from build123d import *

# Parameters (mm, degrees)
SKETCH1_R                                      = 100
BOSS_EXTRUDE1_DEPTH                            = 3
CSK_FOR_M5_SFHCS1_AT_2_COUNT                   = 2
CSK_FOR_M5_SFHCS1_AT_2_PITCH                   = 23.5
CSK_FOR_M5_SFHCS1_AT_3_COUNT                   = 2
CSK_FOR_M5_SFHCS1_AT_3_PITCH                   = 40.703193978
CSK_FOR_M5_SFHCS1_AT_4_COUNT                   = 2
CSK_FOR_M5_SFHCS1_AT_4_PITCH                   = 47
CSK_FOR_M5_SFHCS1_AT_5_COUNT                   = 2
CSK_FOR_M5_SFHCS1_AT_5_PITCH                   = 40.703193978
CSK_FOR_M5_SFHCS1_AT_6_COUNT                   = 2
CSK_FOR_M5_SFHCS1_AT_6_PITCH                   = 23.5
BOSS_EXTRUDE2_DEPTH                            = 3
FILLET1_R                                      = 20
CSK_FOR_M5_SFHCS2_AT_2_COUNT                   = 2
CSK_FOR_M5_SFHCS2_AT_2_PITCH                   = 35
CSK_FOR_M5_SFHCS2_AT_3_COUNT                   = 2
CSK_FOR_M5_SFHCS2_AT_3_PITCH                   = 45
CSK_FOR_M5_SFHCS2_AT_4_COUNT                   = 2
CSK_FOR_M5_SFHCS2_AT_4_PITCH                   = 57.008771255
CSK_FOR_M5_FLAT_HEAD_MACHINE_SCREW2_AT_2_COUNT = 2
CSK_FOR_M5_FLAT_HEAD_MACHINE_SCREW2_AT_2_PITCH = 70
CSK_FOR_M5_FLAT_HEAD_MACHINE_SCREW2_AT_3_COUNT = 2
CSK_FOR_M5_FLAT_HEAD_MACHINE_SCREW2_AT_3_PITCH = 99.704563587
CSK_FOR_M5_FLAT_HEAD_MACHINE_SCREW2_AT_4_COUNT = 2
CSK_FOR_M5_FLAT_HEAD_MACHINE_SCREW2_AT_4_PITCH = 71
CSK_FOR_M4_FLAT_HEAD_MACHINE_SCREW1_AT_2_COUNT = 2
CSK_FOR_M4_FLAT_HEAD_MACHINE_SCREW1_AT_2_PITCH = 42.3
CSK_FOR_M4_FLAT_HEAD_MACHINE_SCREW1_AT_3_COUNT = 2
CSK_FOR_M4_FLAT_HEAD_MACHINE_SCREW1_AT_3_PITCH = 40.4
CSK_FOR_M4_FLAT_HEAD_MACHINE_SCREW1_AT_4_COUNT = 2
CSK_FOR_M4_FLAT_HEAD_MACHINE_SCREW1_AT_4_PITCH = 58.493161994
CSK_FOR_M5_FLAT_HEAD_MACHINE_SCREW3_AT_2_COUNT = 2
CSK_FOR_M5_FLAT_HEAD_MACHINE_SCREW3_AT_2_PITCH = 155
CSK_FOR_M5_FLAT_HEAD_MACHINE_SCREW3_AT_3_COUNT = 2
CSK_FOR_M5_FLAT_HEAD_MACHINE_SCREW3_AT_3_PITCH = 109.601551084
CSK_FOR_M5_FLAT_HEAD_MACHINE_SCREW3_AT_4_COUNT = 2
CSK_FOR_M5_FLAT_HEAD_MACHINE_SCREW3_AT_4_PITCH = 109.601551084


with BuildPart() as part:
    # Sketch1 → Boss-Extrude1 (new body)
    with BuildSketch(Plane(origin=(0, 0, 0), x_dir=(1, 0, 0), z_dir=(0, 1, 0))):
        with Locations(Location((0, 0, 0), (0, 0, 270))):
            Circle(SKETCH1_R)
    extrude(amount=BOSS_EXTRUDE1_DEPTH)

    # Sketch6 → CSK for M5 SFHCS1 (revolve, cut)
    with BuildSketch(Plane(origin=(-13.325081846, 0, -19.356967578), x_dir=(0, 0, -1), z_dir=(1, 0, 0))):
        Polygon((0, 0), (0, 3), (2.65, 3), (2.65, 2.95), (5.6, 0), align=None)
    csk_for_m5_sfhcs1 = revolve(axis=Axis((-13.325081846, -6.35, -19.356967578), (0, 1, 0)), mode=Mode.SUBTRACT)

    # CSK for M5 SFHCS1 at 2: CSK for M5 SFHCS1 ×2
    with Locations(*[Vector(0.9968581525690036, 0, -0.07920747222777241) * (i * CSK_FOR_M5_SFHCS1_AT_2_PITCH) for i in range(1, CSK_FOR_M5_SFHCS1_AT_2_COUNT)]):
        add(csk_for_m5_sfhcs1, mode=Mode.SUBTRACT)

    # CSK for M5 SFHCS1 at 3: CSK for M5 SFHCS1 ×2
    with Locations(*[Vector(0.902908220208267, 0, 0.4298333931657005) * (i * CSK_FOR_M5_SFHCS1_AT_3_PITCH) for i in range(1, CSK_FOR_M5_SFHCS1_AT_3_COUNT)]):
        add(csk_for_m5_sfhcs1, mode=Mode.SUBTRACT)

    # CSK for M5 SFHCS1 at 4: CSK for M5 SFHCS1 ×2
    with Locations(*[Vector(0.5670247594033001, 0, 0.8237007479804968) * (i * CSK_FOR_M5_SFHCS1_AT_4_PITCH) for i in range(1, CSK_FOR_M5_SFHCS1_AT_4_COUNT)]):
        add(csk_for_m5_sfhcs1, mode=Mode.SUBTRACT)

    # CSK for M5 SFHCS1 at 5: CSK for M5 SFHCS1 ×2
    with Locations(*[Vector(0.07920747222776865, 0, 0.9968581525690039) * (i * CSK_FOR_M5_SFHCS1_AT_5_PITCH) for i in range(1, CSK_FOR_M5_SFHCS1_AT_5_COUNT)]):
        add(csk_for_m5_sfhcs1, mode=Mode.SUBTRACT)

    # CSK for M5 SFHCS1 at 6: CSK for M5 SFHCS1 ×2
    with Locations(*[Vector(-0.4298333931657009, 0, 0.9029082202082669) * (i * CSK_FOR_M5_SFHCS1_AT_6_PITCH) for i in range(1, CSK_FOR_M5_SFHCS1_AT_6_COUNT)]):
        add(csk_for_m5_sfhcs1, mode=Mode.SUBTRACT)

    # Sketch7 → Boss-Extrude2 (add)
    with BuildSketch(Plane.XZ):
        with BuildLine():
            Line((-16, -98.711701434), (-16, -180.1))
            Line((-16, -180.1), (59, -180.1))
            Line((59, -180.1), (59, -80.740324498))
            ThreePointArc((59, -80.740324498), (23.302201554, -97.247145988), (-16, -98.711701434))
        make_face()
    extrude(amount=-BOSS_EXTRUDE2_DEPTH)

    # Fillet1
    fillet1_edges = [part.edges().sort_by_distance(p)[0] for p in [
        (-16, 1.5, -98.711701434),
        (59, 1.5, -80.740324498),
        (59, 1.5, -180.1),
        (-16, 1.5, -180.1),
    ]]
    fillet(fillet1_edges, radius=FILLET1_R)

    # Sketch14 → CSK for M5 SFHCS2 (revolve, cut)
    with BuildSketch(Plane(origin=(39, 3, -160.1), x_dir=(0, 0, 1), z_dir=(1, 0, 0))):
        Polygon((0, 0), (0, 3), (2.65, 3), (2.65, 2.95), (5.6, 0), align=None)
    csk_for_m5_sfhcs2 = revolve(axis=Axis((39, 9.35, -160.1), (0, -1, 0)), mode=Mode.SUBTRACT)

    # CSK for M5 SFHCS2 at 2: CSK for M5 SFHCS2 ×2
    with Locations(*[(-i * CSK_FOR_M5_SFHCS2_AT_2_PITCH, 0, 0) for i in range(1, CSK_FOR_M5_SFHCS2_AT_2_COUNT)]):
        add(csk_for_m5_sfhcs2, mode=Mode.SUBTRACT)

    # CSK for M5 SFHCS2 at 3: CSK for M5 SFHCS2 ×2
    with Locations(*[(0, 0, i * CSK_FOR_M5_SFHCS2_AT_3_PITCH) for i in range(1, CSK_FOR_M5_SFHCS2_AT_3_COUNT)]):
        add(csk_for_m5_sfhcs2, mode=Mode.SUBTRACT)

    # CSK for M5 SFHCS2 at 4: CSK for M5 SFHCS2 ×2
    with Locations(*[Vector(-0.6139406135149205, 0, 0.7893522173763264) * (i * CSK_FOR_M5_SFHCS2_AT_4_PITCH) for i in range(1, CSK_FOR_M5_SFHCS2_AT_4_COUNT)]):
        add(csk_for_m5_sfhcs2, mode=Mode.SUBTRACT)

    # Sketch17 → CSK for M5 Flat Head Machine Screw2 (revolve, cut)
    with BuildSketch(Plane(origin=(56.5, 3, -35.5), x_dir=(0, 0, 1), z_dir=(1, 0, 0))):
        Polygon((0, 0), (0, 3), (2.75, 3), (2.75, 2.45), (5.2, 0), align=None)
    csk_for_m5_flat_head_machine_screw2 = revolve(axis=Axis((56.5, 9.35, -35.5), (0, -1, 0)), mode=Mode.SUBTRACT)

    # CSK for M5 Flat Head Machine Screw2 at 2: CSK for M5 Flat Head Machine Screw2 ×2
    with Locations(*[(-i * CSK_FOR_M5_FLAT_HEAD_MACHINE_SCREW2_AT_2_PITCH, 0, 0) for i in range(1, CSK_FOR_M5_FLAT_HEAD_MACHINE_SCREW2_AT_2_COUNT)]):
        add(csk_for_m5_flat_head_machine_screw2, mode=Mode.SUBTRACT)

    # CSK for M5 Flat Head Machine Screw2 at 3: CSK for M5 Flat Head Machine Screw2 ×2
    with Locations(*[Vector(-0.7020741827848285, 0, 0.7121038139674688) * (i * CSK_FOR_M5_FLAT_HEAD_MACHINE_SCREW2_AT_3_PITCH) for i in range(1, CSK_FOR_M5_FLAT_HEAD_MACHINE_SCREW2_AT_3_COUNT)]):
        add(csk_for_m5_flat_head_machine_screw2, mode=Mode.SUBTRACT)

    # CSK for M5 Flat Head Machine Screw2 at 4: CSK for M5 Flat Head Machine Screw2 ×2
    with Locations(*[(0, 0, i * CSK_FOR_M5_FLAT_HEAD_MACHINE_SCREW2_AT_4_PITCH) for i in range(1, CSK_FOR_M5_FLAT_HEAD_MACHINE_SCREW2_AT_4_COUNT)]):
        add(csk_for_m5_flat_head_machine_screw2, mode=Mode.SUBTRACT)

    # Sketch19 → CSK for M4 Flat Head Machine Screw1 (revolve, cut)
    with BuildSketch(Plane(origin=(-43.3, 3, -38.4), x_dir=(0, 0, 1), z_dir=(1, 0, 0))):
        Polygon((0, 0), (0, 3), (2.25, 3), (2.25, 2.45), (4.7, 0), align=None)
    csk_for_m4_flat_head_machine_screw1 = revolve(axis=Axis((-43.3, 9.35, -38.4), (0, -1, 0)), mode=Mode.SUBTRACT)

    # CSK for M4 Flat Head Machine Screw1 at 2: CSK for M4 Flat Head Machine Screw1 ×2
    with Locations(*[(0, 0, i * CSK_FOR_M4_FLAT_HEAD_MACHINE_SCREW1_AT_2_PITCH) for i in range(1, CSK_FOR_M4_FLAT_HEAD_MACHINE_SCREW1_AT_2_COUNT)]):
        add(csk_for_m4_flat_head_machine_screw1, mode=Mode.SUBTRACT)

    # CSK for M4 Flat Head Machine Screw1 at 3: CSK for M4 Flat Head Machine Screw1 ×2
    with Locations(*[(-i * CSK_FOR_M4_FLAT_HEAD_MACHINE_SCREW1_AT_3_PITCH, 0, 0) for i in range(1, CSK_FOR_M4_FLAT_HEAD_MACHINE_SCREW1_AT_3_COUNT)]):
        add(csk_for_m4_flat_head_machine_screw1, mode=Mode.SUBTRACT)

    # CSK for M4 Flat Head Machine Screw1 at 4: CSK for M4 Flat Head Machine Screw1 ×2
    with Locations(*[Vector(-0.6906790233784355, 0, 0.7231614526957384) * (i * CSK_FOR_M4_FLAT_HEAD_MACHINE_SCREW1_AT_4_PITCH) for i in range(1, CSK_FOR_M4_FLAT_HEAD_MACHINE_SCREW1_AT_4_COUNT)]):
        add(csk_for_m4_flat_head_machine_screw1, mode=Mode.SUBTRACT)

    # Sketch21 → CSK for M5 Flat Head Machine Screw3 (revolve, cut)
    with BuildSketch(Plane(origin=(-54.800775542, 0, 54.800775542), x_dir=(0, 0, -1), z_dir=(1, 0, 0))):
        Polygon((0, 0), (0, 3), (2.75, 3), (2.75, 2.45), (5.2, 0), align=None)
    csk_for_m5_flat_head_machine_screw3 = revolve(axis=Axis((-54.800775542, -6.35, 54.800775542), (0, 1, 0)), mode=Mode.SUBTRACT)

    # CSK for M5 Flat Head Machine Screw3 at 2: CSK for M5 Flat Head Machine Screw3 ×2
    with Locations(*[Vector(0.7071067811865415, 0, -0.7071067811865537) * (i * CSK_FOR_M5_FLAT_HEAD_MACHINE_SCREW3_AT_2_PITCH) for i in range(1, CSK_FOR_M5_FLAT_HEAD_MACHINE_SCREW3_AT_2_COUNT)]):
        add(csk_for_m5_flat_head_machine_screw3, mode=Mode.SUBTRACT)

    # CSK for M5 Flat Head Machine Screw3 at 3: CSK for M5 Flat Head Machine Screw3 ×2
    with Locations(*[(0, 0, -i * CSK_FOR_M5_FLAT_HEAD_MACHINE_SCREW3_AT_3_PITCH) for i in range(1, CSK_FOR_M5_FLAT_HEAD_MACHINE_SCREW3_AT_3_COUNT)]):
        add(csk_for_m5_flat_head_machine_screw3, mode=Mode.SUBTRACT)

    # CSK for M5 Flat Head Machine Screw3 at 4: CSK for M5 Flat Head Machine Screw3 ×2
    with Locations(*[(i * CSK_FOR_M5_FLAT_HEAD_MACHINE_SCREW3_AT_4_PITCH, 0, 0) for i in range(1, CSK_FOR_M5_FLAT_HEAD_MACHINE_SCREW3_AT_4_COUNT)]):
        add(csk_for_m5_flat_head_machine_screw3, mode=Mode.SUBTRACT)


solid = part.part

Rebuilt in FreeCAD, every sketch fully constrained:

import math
import FreeCAD as App
import Part
import Sketcher
from FreeCAD import Vector
Q = App.Units.Quantity


def edges_at(feature, points):
    """Names of the edges that pass closest to the given points."""
    edges = feature.Shape.Edges
    near = lambda p: min(range(len(edges)), key=lambda i: edges[i].distToShape(Part.Vertex(*p))[0])
    return sorted({f"Edge{near(p) + 1}" for p in points})

doc = App.newDocument("Part")
body = doc.addObject("PartDesign::Body", "Body")

# Sketch on XZ plane
sketch1 = body.newObject("Sketcher::SketchObject", "Sketch")
sketch1.AttachmentSupport = (doc.getObject("XZ_Plane"), [""])
sketch1.MapMode = "FlatFace"
sketch1.addGeometry(Part.Circle(Vector(0, 0, 0), Vector(0, 0, 1), 100), False)
sketch1.addConstraint([
    Sketcher.Constraint("Coincident", 0, 3, -1, 1),
    Sketcher.Constraint("Diameter", 0, 200.0),
])
pad1 = body.newObject("PartDesign::Pad", "Pad")
pad1.Profile = sketch1
pad1.Length = 3
pad1.Reversed = True

# Sketch on YZ plane
sketch2 = body.newObject("Sketcher::SketchObject", "Sketch001")
sketch2.AttachmentSupport = (doc.getObject("YZ_Plane"), [""])
sketch2.MapMode = "FlatFace"
sketch2.AttachmentOffset = App.Placement(Vector(0, 0, -13.325082), App.Rotation())
sketch2.addGeometry([
    Part.LineSegment(Vector(3, -19.356968, 0), Vector(0, -19.356968, 0)),  # 0
    Part.LineSegment(Vector(0, -19.356968, 0), Vector(0, -24.956968, 0)),  # 1
    Part.LineSegment(Vector(0, -24.956968, 0), Vector(2.95, -22.006968, 0)),  # 2
    Part.LineSegment(Vector(2.95, -22.006968, 0), Vector(3, -22.006968, 0)),  # 3
    Part.LineSegment(Vector(3, -22.006968, 0), Vector(3, -19.356968, 0)),  # 4
], False)
sketch2.addGeometry(Part.LineSegment(Vector(0, -19.356968, 0), Vector(3, -19.356968, 0)), True)  # axis
sketch2.addConstraint([
    Sketcher.Constraint("Coincident", 0, 2, 1, 1),
    Sketcher.Constraint("Coincident", 1, 2, 2, 1),
    Sketcher.Constraint("Coincident", 2, 2, 3, 1),
    Sketcher.Constraint("Coincident", 3, 2, 4, 1),
    Sketcher.Constraint("Coincident", 4, 2, 0, 1),
    Sketcher.Constraint("Horizontal", 0),
    Sketcher.Constraint("Vertical", 1),
    Sketcher.Constraint("Horizontal", 3),
    Sketcher.Constraint("Vertical", 4),
    Sketcher.Constraint("Horizontal", 5),
    Sketcher.Constraint("Coincident", 5, 1, 0, 2),
    Sketcher.Constraint("PointOnObject", 0, 2, -2),
    Sketcher.Constraint("Vertical", 3, 2, 5, 2),
    Sketcher.Constraint("DistanceX", 0, 2, 0, 1, 3.0),
    Sketcher.Constraint("Angle", 2, Q("45 deg")),
    Sketcher.Constraint("DistanceY", 1, 2, 1, 1, 5.6),
    Sketcher.Constraint("DistanceX", 3, 1, 3, 2, 0.05),
    Sketcher.Constraint("DistanceY", 0, 2, -1, 1, 19.356968),
])
groove = body.newObject("PartDesign::Groove", "Groove")
groove.Profile = sketch2
groove.ReferenceAxis = (sketch2, ["Axis0"])
groove.Angle = 360
doc.recompute()

datumline = body.newObject("PartDesign::Line", "DatumLine")
datumline.Placement = App.Placement(Vector(0, 0, 0), App.Rotation(Vector(0, 0, 1), Vector(0.996858153, 0, -0.079207472)))
linearpattern = body.newObject("PartDesign::LinearPattern", "LinearPattern")
linearpattern.Originals = [groove]
linearpattern.Direction = (datumline, [""])
linearpattern.Mode = "offset"
linearpattern.Offset = 23.5
linearpattern.Occurrences = 2
body.Tip = linearpattern
doc.recompute()

datumline2 = body.newObject("PartDesign::Line", "DatumLine001")
datumline2.Placement = App.Placement(Vector(0, 0, 0), App.Rotation(Vector(0, 0, 1), Vector(0.90290822, 0, 0.429833393)))
linearpattern2 = body.newObject("PartDesign::LinearPattern", "LinearPattern001")
linearpattern2.Originals = [groove]
linearpattern2.Direction = (datumline2, [""])
linearpattern2.Mode = "offset"
linearpattern2.Offset = 40.703194
linearpattern2.Occurrences = 2
body.Tip = linearpattern2
doc.recompute()

datumline3 = body.newObject("PartDesign::Line", "DatumLine002")
datumline3.Placement = App.Placement(Vector(0, 0, 0), App.Rotation(Vector(0, 0, 1), Vector(0.567024759, 0, 0.823700748)))
linearpattern3 = body.newObject("PartDesign::LinearPattern", "LinearPattern002")
linearpattern3.Originals = [groove]
linearpattern3.Direction = (datumline3, [""])
linearpattern3.Mode = "offset"
linearpattern3.Offset = 47
linearpattern3.Occurrences = 2
body.Tip = linearpattern3
doc.recompute()

datumline4 = body.newObject("PartDesign::Line", "DatumLine003")
datumline4.Placement = App.Placement(Vector(0, 0, 0), App.Rotation(Vector(0, 0, 1), Vector(0.079207472, 0, 0.996858153)))
linearpattern4 = body.newObject("PartDesign::LinearPattern", "LinearPattern003")
linearpattern4.Originals = [groove]
linearpattern4.Direction = (datumline4, [""])
linearpattern4.Mode = "offset"
linearpattern4.Offset = 40.703194
linearpattern4.Occurrences = 2
body.Tip = linearpattern4
doc.recompute()

datumline5 = body.newObject("PartDesign::Line", "DatumLine004")
datumline5.Placement = App.Placement(Vector(0, 0, 0), App.Rotation(Vector(0, 0, 1), Vector(-0.429833393, 0, 0.90290822)))
linearpattern5 = body.newObject("PartDesign::LinearPattern", "LinearPattern004")
linearpattern5.Originals = [groove]
linearpattern5.Direction = (datumline5, [""])
linearpattern5.Mode = "offset"
linearpattern5.Offset = 23.5
linearpattern5.Occurrences = 2
body.Tip = linearpattern5

# Sketch on XZ plane
sketch3 = body.newObject("Sketcher::SketchObject", "Sketch002")
sketch3.AttachmentSupport = (doc.getObject("XZ_Plane"), [""])
sketch3.MapMode = "FlatFace"
sketch3.addGeometry([
    Part.LineSegment(Vector(-16, -99, 0), Vector(-16, -180, 0)),
    Part.LineSegment(Vector(-16, -180, 0), Vector(59, -180, 0)),
    Part.LineSegment(Vector(59, -180, 0), Vector(59, -81, 0)),
    Part.ArcOfCircle(Part.Circle(Vector(0, 0, 0), Vector(0, 0, 1), 100), math.radians(-99), math.radians(-54)),
], False)
sketch3.addConstraint([
    Sketcher.Constraint("Coincident", 0, 2, 1, 1),
    Sketcher.Constraint("Coincident", 1, 2, 2, 1),
    Sketcher.Constraint("Coincident", 2, 2, 3, 2),
    Sketcher.Constraint("Coincident", 3, 1, 0, 1),
    Sketcher.Constraint("Vertical", 0),
    Sketcher.Constraint("Horizontal", 1),
    Sketcher.Constraint("Vertical", 2),
    Sketcher.Constraint("Coincident", 3, 3, -1, 1),
    Sketcher.Constraint("Radius", 3, 100.0),
    Sketcher.Constraint("DistanceX", 1, 1, 1, 2, 75.0),
    Sketcher.Constraint("DistanceX", 0, 2, -1, 1, 16.0),
    Sketcher.Constraint("DistanceY", 0, 2, -1, 1, 180.1),
])
pad2 = body.newObject("PartDesign::Pad", "Pad001")
pad2.Profile = sketch3
pad2.Length = 3
pad2.Reversed = True
doc.recompute()

fillet = body.newObject("PartDesign::Fillet", "Fillet")
fillet.Base = (pad2, edges_at(pad2, [
    (-16, 1.5, -98.712),
    (59, 1.5, -80.74),
    (59, 1.5, -180.1),
    (-16, 1.5, -180.1),
]))
fillet.Radius = 20

# Sketch on YZ plane
sketch4 = body.newObject("Sketcher::SketchObject", "Sketch003")
sketch4.AttachmentSupport = (doc.getObject("YZ_Plane"), [""])
sketch4.MapMode = "FlatFace"
sketch4.AttachmentOffset = App.Placement(Vector(0, 0, 39), App.Rotation())
sketch4.addGeometry([
    Part.LineSegment(Vector(0, -160.1, 0), Vector(3, -160.1, 0)),  # 0
    Part.LineSegment(Vector(3, -160.1, 0), Vector(3, -154.5, 0)),  # 1
    Part.LineSegment(Vector(3, -154.5, 0), Vector(0.05, -157.45, 0)),  # 2
    Part.LineSegment(Vector(0.05, -157.45, 0), Vector(0, -157.45, 0)),  # 3
    Part.LineSegment(Vector(0, -157.45, 0), Vector(0, -160.1, 0)),  # 4
], False)
sketch4.addGeometry(Part.LineSegment(Vector(3, -160.1, 0), Vector(0, -160.1, 0)), True)  # axis
sketch4.addConstraint([
    Sketcher.Constraint("Coincident", 0, 2, 1, 1),
    Sketcher.Constraint("Coincident", 1, 2, 2, 1),
    Sketcher.Constraint("Coincident", 2, 2, 3, 1),
    Sketcher.Constraint("Coincident", 3, 2, 4, 1),
    Sketcher.Constraint("Coincident", 4, 2, 0, 1),
    Sketcher.Constraint("Horizontal", 0),
    Sketcher.Constraint("Vertical", 1),
    Sketcher.Constraint("Horizontal", 3),
    Sketcher.Constraint("Vertical", 4),
    Sketcher.Constraint("Horizontal", 5),
    Sketcher.Constraint("Coincident", 5, 1, 0, 2),
    Sketcher.Constraint("PointOnObject", 3, 2, -2),
    Sketcher.Constraint("PointOnObject", 5, 2, -2),
    Sketcher.Constraint("DistanceX", 0, 1, 0, 2, 3.0),
    Sketcher.Constraint("Angle", 2, Q("-135 deg")),
    Sketcher.Constraint("DistanceY", 1, 1, 1, 2, 5.6),
    Sketcher.Constraint("DistanceX", 3, 2, 3, 1, 0.05),
    Sketcher.Constraint("DistanceY", 0, 2, -1, 1, 160.1),
])
groove2 = body.newObject("PartDesign::Groove", "Groove001")
groove2.Profile = sketch4
groove2.ReferenceAxis = (sketch4, ["Axis0"])
groove2.Angle = 360
doc.recompute()

linearpattern6 = body.newObject("PartDesign::LinearPattern", "LinearPattern005")
linearpattern6.Originals = [groove2]
linearpattern6.Direction = (doc.getObject("X_Axis"), [""])
linearpattern6.Mode = "offset"
linearpattern6.Offset = 35
linearpattern6.Occurrences = 2
linearpattern6.Reversed = True
body.Tip = linearpattern6
doc.recompute()

linearpattern7 = body.newObject("PartDesign::LinearPattern", "LinearPattern006")
linearpattern7.Originals = [groove2]
linearpattern7.Direction = (doc.getObject("Z_Axis"), [""])
linearpattern7.Mode = "offset"
linearpattern7.Offset = 45
linearpattern7.Occurrences = 2
body.Tip = linearpattern7
doc.recompute()

datumline6 = body.newObject("PartDesign::Line", "DatumLine005")
datumline6.Placement = App.Placement(Vector(0, 0, 0), App.Rotation(Vector(0, 0, 1), Vector(-0.613940614, 0, 0.789352217)))
linearpattern8 = body.newObject("PartDesign::LinearPattern", "LinearPattern007")
linearpattern8.Originals = [groove2]
linearpattern8.Direction = (datumline6, [""])
linearpattern8.Mode = "offset"
linearpattern8.Offset = 57.008771
linearpattern8.Occurrences = 2
body.Tip = linearpattern8

# Sketch on YZ plane
sketch5 = body.newObject("Sketcher::SketchObject", "Sketch004")
sketch5.AttachmentSupport = (doc.getObject("YZ_Plane"), [""])
sketch5.MapMode = "FlatFace"
sketch5.AttachmentOffset = App.Placement(Vector(0, 0, 56.5), App.Rotation())
sketch5.addGeometry([
    Part.LineSegment(Vector(0, -35.5, 0), Vector(3, -35.5, 0)),  # 0
    Part.LineSegment(Vector(3, -35.5, 0), Vector(3, -30.3, 0)),  # 1
    Part.LineSegment(Vector(3, -30.3, 0), Vector(0.6, -32.8, 0)),  # 2
    Part.LineSegment(Vector(0.6, -32.8, 0), Vector(0, -32.8, 0)),  # 3
    Part.LineSegment(Vector(0, -32.8, 0), Vector(0, -35.5, 0)),  # 4
], False)
sketch5.addGeometry(Part.LineSegment(Vector(3, -35.5, 0), Vector(0, -35.5, 0)), True)  # axis
sketch5.addConstraint([
    Sketcher.Constraint("Coincident", 0, 2, 1, 1),
    Sketcher.Constraint("Coincident", 1, 2, 2, 1),
    Sketcher.Constraint("Coincident", 2, 2, 3, 1),
    Sketcher.Constraint("Coincident", 3, 2, 4, 1),
    Sketcher.Constraint("Coincident", 4, 2, 0, 1),
    Sketcher.Constraint("Horizontal", 0),
    Sketcher.Constraint("Vertical", 1),
    Sketcher.Constraint("Horizontal", 3),
    Sketcher.Constraint("Vertical", 4),
    Sketcher.Constraint("Horizontal", 5),
    Sketcher.Constraint("Coincident", 5, 1, 0, 2),
    Sketcher.Constraint("PointOnObject", 3, 2, -2),
    Sketcher.Constraint("PointOnObject", 5, 2, -2),
    Sketcher.Constraint("DistanceX", 0, 1, 0, 2, 3.0),
    Sketcher.Constraint("Angle", 2, Q("-135 deg")),
    Sketcher.Constraint("DistanceY", 1, 1, 1, 2, 5.2),
    Sketcher.Constraint("DistanceX", 3, 2, 3, 1, 0.55),
    Sketcher.Constraint("DistanceY", 0, 2, -1, 1, 35.5),
])
groove3 = body.newObject("PartDesign::Groove", "Groove002")
groove3.Profile = sketch5
groove3.ReferenceAxis = (sketch5, ["Axis0"])
groove3.Angle = 360
doc.recompute()

linearpattern9 = body.newObject("PartDesign::LinearPattern", "LinearPattern008")
linearpattern9.Originals = [groove3]
linearpattern9.Direction = (doc.getObject("X_Axis"), [""])
linearpattern9.Mode = "offset"
linearpattern9.Offset = 70
linearpattern9.Occurrences = 2
linearpattern9.Reversed = True
body.Tip = linearpattern9
doc.recompute()

datumline7 = body.newObject("PartDesign::Line", "DatumLine006")
datumline7.Placement = App.Placement(Vector(0, 0, 0), App.Rotation(Vector(0, 0, 1), Vector(-0.702074183, 0, 0.712103814)))
linearpattern10 = body.newObject("PartDesign::LinearPattern", "LinearPattern009")
linearpattern10.Originals = [groove3]
linearpattern10.Direction = (datumline7, [""])
linearpattern10.Mode = "offset"
linearpattern10.Offset = 99.704564
linearpattern10.Occurrences = 2
body.Tip = linearpattern10
doc.recompute()

linearpattern11 = body.newObject("PartDesign::LinearPattern", "LinearPattern010")
linearpattern11.Originals = [groove3]
linearpattern11.Direction = (doc.getObject("Z_Axis"), [""])
linearpattern11.Mode = "offset"
linearpattern11.Offset = 71
linearpattern11.Occurrences = 2
body.Tip = linearpattern11

# Sketch on YZ plane
sketch6 = body.newObject("Sketcher::SketchObject", "Sketch005")
sketch6.AttachmentSupport = (doc.getObject("YZ_Plane"), [""])
sketch6.MapMode = "FlatFace"
sketch6.AttachmentOffset = App.Placement(Vector(0, 0, -43.3), App.Rotation())
sketch6.addGeometry([
    Part.LineSegment(Vector(0, -38.4, 0), Vector(3, -38.4, 0)),  # 0
    Part.LineSegment(Vector(3, -38.4, 0), Vector(3, -33.7, 0)),  # 1
    Part.LineSegment(Vector(3, -33.7, 0), Vector(0.6, -36.1, 0)),  # 2
    Part.LineSegment(Vector(0.6, -36.1, 0), Vector(0, -36.1, 0)),  # 3
    Part.LineSegment(Vector(0, -36.1, 0), Vector(0, -38.4, 0)),  # 4
], False)
sketch6.addGeometry(Part.LineSegment(Vector(3, -38.4, 0), Vector(0, -38.4, 0)), True)  # axis
sketch6.addConstraint([
    Sketcher.Constraint("Coincident", 0, 2, 1, 1),
    Sketcher.Constraint("Coincident", 1, 2, 2, 1),
    Sketcher.Constraint("Coincident", 2, 2, 3, 1),
    Sketcher.Constraint("Coincident", 3, 2, 4, 1),
    Sketcher.Constraint("Coincident", 4, 2, 0, 1),
    Sketcher.Constraint("Horizontal", 0),
    Sketcher.Constraint("Vertical", 1),
    Sketcher.Constraint("Horizontal", 3),
    Sketcher.Constraint("Vertical", 4),
    Sketcher.Constraint("Horizontal", 5),
    Sketcher.Constraint("Coincident", 5, 1, 0, 2),
    Sketcher.Constraint("PointOnObject", 3, 2, -2),
    Sketcher.Constraint("PointOnObject", 5, 2, -2),
    Sketcher.Constraint("DistanceX", 0, 1, 0, 2, 3.0),
    Sketcher.Constraint("Angle", 2, Q("-135 deg")),
    Sketcher.Constraint("DistanceY", 1, 1, 1, 2, 4.7),
    Sketcher.Constraint("DistanceX", 3, 2, 3, 1, 0.55),
    Sketcher.Constraint("DistanceY", 0, 2, -1, 1, 38.4),
])
groove4 = body.newObject("PartDesign::Groove", "Groove003")
groove4.Profile = sketch6
groove4.ReferenceAxis = (sketch6, ["Axis0"])
groove4.Angle = 360
doc.recompute()

linearpattern12 = body.newObject("PartDesign::LinearPattern", "LinearPattern011")
linearpattern12.Originals = [groove4]
linearpattern12.Direction = (doc.getObject("Z_Axis"), [""])
linearpattern12.Mode = "offset"
linearpattern12.Offset = 42.3
linearpattern12.Occurrences = 2
body.Tip = linearpattern12
doc.recompute()

linearpattern13 = body.newObject("PartDesign::LinearPattern", "LinearPattern012")
linearpattern13.Originals = [groove4]
linearpattern13.Direction = (doc.getObject("X_Axis"), [""])
linearpattern13.Mode = "offset"
linearpattern13.Offset = 40.4
linearpattern13.Occurrences = 2
linearpattern13.Reversed = True
body.Tip = linearpattern13
doc.recompute()

datumline8 = body.newObject("PartDesign::Line", "DatumLine007")
datumline8.Placement = App.Placement(Vector(0, 0, 0), App.Rotation(Vector(0, 0, 1), Vector(-0.690679023, 0, 0.723161453)))
linearpattern14 = body.newObject("PartDesign::LinearPattern", "LinearPattern013")
linearpattern14.Originals = [groove4]
linearpattern14.Direction = (datumline8, [""])
linearpattern14.Mode = "offset"
linearpattern14.Offset = 58.493162
linearpattern14.Occurrences = 2
body.Tip = linearpattern14

# Sketch on YZ plane
sketch7 = body.newObject("Sketcher::SketchObject", "Sketch006")
sketch7.AttachmentSupport = (doc.getObject("YZ_Plane"), [""])
sketch7.MapMode = "FlatFace"
sketch7.AttachmentOffset = App.Placement(Vector(0, 0, -54.800776), App.Rotation())
sketch7.addGeometry([
    Part.LineSegment(Vector(3, 54.8, 0), Vector(0, 54.8, 0)),  # 0
    Part.LineSegment(Vector(0, 54.8, 0), Vector(0, 49.6, 0)),  # 1
    Part.LineSegment(Vector(0, 49.6, 0), Vector(2.5, 52.1, 0)),  # 2
    Part.LineSegment(Vector(2.5, 52.1, 0), Vector(3, 52.1, 0)),  # 3
    Part.LineSegment(Vector(3, 52.1, 0), Vector(3, 54.8, 0)),  # 4
], False)
sketch7.addGeometry(Part.LineSegment(Vector(0, 54.8, 0), Vector(3, 54.8, 0)), True)  # axis
sketch7.addConstraint([
    Sketcher.Constraint("Coincident", 0, 2, 1, 1),
    Sketcher.Constraint("Coincident", 1, 2, 2, 1),
    Sketcher.Constraint("Coincident", 2, 2, 3, 1),
    Sketcher.Constraint("Coincident", 3, 2, 4, 1),
    Sketcher.Constraint("Coincident", 4, 2, 0, 1),
    Sketcher.Constraint("Horizontal", 0),
    Sketcher.Constraint("Vertical", 1),
    Sketcher.Constraint("Horizontal", 3),
    Sketcher.Constraint("Vertical", 4),
    Sketcher.Constraint("Horizontal", 5),
    Sketcher.Constraint("Coincident", 5, 1, 0, 2),
    Sketcher.Constraint("PointOnObject", 0, 2, -2),
    Sketcher.Constraint("Vertical", 3, 2, 5, 2),
    Sketcher.Constraint("DistanceX", 0, 2, 0, 1, 3.0),
    Sketcher.Constraint("Angle", 2, Q("45 deg")),
    Sketcher.Constraint("DistanceY", 1, 2, 1, 1, 5.2),
    Sketcher.Constraint("DistanceX", 3, 1, 3, 2, 0.55),
    Sketcher.Constraint("DistanceY", -1, 1, 0, 2, 54.800776),
])
groove5 = body.newObject("PartDesign::Groove", "Groove004")
groove5.Profile = sketch7
groove5.ReferenceAxis = (sketch7, ["Axis0"])
groove5.Angle = 360
doc.recompute()

datumline9 = body.newObject("PartDesign::Line", "DatumLine008")
datumline9.Placement = App.Placement(Vector(0, 0, 0), App.Rotation(Vector(0, 0, 1), Vector(0.707106781, 0, -0.707106781)))
linearpattern15 = body.newObject("PartDesign::LinearPattern", "LinearPattern014")
linearpattern15.Originals = [groove5]
linearpattern15.Direction = (datumline9, [""])
linearpattern15.Mode = "offset"
linearpattern15.Offset = 155
linearpattern15.Occurrences = 2
body.Tip = linearpattern15
doc.recompute()

linearpattern16 = body.newObject("PartDesign::LinearPattern", "LinearPattern015")
linearpattern16.Originals = [groove5]
linearpattern16.Direction = (doc.getObject("Z_Axis"), [""])
linearpattern16.Mode = "offset"
linearpattern16.Offset = 109.601551
linearpattern16.Occurrences = 2
linearpattern16.Reversed = True
body.Tip = linearpattern16
doc.recompute()

linearpattern17 = body.newObject("PartDesign::LinearPattern", "LinearPattern016")
linearpattern17.Originals = [groove5]
linearpattern17.Direction = (doc.getObject("X_Axis"), [""])
linearpattern17.Mode = "offset"
linearpattern17.Offset = 109.601551
linearpattern17.Occurrences = 2
body.Tip = linearpattern17

doc.recompute()
